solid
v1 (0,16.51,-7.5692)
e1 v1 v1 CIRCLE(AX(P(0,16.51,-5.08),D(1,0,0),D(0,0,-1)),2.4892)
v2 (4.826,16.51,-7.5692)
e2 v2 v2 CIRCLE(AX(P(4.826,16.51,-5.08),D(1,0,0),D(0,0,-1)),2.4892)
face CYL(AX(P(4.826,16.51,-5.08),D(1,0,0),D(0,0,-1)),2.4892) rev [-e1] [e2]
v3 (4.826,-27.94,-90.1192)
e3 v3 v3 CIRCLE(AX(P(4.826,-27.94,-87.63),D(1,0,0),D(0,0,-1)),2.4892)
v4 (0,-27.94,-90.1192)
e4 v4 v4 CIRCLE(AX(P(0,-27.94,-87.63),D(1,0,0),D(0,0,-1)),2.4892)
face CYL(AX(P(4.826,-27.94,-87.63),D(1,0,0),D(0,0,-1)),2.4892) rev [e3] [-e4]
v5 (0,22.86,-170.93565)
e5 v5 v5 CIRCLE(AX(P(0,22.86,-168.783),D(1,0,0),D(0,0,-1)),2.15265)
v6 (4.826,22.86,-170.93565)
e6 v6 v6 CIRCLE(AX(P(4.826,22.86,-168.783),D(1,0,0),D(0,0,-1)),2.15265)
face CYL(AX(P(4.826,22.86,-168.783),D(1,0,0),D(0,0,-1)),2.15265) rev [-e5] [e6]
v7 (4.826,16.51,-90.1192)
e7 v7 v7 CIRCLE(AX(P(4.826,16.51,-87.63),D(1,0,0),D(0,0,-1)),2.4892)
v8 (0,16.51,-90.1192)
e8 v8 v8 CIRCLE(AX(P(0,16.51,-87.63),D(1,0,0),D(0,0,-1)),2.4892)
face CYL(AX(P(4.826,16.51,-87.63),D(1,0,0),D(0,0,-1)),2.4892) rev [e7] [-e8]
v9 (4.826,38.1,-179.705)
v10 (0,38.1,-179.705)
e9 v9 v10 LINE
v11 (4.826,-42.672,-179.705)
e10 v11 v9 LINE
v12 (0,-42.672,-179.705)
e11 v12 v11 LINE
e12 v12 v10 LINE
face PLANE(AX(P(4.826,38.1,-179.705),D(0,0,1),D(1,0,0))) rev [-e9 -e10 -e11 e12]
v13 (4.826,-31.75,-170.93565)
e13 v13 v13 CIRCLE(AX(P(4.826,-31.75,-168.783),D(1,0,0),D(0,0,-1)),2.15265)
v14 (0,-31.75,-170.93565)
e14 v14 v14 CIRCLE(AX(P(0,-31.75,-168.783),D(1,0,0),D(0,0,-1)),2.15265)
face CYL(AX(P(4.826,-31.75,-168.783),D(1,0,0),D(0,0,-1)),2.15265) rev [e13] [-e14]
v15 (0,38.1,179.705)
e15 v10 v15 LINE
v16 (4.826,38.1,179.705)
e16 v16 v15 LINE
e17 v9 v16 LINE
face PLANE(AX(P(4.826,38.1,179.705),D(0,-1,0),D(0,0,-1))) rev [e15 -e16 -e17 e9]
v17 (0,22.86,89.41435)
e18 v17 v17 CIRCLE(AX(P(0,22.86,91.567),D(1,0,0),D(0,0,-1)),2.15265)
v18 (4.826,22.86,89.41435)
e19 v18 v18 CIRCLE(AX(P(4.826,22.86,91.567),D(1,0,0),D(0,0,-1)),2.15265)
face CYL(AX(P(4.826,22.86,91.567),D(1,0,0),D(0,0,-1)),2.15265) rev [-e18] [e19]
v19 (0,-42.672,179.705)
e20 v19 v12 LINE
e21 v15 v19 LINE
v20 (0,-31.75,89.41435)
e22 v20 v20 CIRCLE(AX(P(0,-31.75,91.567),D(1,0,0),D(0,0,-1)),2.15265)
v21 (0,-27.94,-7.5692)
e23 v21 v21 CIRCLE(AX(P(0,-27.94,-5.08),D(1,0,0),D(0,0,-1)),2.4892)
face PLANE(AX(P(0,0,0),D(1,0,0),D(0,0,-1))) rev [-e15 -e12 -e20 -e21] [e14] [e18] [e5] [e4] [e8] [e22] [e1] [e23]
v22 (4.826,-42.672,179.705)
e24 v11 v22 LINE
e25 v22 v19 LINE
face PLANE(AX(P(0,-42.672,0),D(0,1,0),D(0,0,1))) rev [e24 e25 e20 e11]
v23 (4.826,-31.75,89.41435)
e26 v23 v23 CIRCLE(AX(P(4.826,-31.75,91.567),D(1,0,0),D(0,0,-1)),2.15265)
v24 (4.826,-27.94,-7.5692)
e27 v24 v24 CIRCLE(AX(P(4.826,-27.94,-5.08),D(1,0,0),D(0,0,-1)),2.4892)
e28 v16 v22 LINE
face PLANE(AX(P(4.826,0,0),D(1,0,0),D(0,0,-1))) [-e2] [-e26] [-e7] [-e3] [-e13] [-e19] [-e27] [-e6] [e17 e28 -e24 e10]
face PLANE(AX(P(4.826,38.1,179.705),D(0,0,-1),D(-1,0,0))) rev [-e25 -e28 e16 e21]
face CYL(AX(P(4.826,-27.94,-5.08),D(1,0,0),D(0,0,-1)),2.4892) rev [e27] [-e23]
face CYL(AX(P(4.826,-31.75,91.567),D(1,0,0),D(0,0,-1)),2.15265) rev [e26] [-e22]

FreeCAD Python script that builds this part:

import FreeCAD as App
import Part
import Sketcher
from FreeCAD import Vector
Q = App.Units.Quantity


def add_polygon(sketch, points):
    """Adds a closed chain of lines whose ends are joined by coincident constraints."""
    first, n = sketch.GeometryCount, len(points)
    for a, b in zip(points, points[1:] + points[:1]):
        sketch.addGeometry(Part.LineSegment(App.Vector(*a, 0), App.Vector(*b, 0)), False)
    for i in range(n):
        sketch.addConstraint(Sketcher.Constraint("Coincident", first + i, 2, first + (i + 1) % n, 1))

doc = App.newDocument("Part")
body = doc.addObject("PartDesign::Body", "Body")

sketch1 = body.newObject("Sketcher::SketchObject", "Sketch")
sketch1.AttachmentSupport = (doc.getObject("YZ_Plane"), [""])
sketch1.MapMode = "FlatFace"
add_polygon(sketch1, [(38.1, 179.705), (-38.1, 179.705), (-38.1, -179.705), (38.1, -179.705)])
sketch1.addConstraint([
    Sketcher.Constraint("Horizontal", 0),
    Sketcher.Constraint("Vertical", 1),
    Sketcher.Constraint("Horizontal", 2),
    Sketcher.Constraint("Vertical", 3),
    Sketcher.Constraint("Symmetric", 0, 2, 2, 2, -1, 1),
    Sketcher.Constraint("DistanceX", 0, 2, 0, 1, Q("3 in")),
    Sketcher.Constraint("DistanceY", 1, 2, 1, 1, Q("14.15 in")),
])
pad1 = body.newObject("PartDesign::Pad", "Pad")
pad1.Profile = sketch1
pad1.Length = Q("0.19 in")

sketch2 = body.newObject("Sketcher::SketchObject", "Sketch001")
sketch2.AttachmentSupport = (doc.getObject("YZ_Plane"), [""])
sketch2.MapMode = "FlatFace"
sketch2.AttachmentOffset = App.Placement(Vector(0, 0, 0.19 * 25.4), App.Rotation())
sketch2.addGeometry([
    Part.Circle(Vector(-27.94, -87.63, 0), Vector(0, 0, 1), 2.4892),
    Part.Circle(Vector(-27.94, -5.08, 0), Vector(0, 0, 1), 2.4892),
    Part.Circle(Vector(16.51, -5.08, 0), Vector(0, 0, 1), 2.4892),
    Part.Circle(Vector(16.51, -87.63, 0), Vector(0, 0, 1), 2.4892),
], False)
sketch2.addConstraint([
    Sketcher.Constraint("Equal", 0, 1),
    Sketcher.Constraint("Equal", 1, 2),
    Sketcher.Constraint("Equal", 2, 3),
    Sketcher.Constraint("Horizontal", 1, 3, 2, 3),
    Sketcher.Constraint("Horizontal", 0, 3, 3, 3),
    Sketcher.Constraint("Vertical", 0, 3, 1, 3),
    Sketcher.Constraint("Vertical", 2, 3, 3, 3),
    Sketcher.Constraint("Diameter", 0, Q("0.196 in")),
    Sketcher.Constraint("DistanceX", 0, 3, -1, 1, Q("1.1 in")),
    Sketcher.Constraint("DistanceY", 1, 3, -1, 1, Q("0.2 in")),
    Sketcher.Constraint("DistanceY", 0, 3, -1, 1, Q("3.45 in")),
    Sketcher.Constraint("DistanceX", -1, 1, 2, 3, Q("0.65 in")),
])
doc.recompute()
hole = body.newObject("PartDesign::Hole", "Hole")
hole.Profile = sketch2
hole.ThreadType = "None"
hole.Diameter = Q("0.196 in")
hole.DepthType = "ThroughAll"

sketch3 = body.newObject("Sketcher::SketchObject", "Sketch002")
sketch3.AttachmentSupport = (doc.getObject("YZ_Plane"), [""])
sketch3.MapMode = "FlatFace"
sketch3.AttachmentOffset = App.Placement(Vector(0, 0, 0.19 * 25.4), App.Rotation())
sketch3.addGeometry([
    Part.Circle(Vector(22.86, 91.567, 0), Vector(0, 0, 1), 2.15265),
    Part.Circle(Vector(-31.75, 91.567, 0), Vector(0, 0, 1), 2.15265),
    Part.Circle(Vector(-31.75, -168.783, 0), Vector(0, 0, 1), 2.15265),
    Part.Circle(Vector(22.86, -168.783, 0), Vector(0, 0, 1), 2.15265),
], False)
sketch3.addConstraint([
    Sketcher.Constraint("Equal", 0, 1),
    Sketcher.Constraint("Equal", 1, 2),
    Sketcher.Constraint("Equal", 2, 3),
    Sketcher.Constraint("Horizontal", 0, 3, 1, 3),
    Sketcher.Constraint("Horizontal", 2, 3, 3, 3),
    Sketcher.Constraint("Vertical", 1, 3, 2, 3),
    Sketcher.Constraint("Vertical", 0, 3, 3, 3),
    Sketcher.Constraint("Diameter", 0, Q("0.1695 in")),
    Sketcher.Constraint("DistanceX", -1, 1, 0, 3, Q("0.9 in")),
    Sketcher.Constraint("DistanceX", 1, 3, -1, 1, Q("1.25 in")),
    Sketcher.Constraint("DistanceY", 2, 3, 1, 3, Q("10.25 in")),
    Sketcher.Constraint("DistanceY", -1, 1, 0, 3, Q("3.605 in")),
])
doc.recompute()
hole2 = body.newObject("PartDesign::Hole", "Hole001")
hole2.Profile = sketch3
hole2.ThreadType = "None"
hole2.Diameter = Q("0.1695 in")
hole2.DepthType = "Dimension"
hole2.Depth = Q("0.5 in")
hole2.DrillPoint = "Angled"
hole2.DrillPointAngle = 118

sketch4 = body.newObject("Sketcher::SketchObject", "Sketch003")
sketch4.AttachmentSupport = (doc.getObject("XZ_Plane"), [""])
sketch4.MapMode = "FlatFace"
sketch4.AttachmentOffset = App.Placement(Vector(0, 0, 1.5 * 25.4), App.Rotation())
add_polygon(sketch4, [(0, 179.705), (0, -179.705), (4.826, -179.705), (4.826, 179.705)])
sketch4.addConstraint([
    Sketcher.Constraint("Vertical", 0),
    Sketcher.Constraint("Horizontal", 1),
    Sketcher.Constraint("Vertical", 2),
    Sketcher.Constraint("Horizontal", 3),
    Sketcher.Constraint("Symmetric", 0, 2, 3, 2, -1, 1),
    Sketcher.Constraint("DistanceX", 1, 1, 1, 2, Q("0.19 in")),
    Sketcher.Constraint("DistanceY", 0, 2, 0, 1, Q("14.15 in")),
])
pad2 = body.newObject("PartDesign::Pad", "Pad001")
pad2.Profile = sketch4
pad2.Length = Q("0.18 in")

doc.recompute()
